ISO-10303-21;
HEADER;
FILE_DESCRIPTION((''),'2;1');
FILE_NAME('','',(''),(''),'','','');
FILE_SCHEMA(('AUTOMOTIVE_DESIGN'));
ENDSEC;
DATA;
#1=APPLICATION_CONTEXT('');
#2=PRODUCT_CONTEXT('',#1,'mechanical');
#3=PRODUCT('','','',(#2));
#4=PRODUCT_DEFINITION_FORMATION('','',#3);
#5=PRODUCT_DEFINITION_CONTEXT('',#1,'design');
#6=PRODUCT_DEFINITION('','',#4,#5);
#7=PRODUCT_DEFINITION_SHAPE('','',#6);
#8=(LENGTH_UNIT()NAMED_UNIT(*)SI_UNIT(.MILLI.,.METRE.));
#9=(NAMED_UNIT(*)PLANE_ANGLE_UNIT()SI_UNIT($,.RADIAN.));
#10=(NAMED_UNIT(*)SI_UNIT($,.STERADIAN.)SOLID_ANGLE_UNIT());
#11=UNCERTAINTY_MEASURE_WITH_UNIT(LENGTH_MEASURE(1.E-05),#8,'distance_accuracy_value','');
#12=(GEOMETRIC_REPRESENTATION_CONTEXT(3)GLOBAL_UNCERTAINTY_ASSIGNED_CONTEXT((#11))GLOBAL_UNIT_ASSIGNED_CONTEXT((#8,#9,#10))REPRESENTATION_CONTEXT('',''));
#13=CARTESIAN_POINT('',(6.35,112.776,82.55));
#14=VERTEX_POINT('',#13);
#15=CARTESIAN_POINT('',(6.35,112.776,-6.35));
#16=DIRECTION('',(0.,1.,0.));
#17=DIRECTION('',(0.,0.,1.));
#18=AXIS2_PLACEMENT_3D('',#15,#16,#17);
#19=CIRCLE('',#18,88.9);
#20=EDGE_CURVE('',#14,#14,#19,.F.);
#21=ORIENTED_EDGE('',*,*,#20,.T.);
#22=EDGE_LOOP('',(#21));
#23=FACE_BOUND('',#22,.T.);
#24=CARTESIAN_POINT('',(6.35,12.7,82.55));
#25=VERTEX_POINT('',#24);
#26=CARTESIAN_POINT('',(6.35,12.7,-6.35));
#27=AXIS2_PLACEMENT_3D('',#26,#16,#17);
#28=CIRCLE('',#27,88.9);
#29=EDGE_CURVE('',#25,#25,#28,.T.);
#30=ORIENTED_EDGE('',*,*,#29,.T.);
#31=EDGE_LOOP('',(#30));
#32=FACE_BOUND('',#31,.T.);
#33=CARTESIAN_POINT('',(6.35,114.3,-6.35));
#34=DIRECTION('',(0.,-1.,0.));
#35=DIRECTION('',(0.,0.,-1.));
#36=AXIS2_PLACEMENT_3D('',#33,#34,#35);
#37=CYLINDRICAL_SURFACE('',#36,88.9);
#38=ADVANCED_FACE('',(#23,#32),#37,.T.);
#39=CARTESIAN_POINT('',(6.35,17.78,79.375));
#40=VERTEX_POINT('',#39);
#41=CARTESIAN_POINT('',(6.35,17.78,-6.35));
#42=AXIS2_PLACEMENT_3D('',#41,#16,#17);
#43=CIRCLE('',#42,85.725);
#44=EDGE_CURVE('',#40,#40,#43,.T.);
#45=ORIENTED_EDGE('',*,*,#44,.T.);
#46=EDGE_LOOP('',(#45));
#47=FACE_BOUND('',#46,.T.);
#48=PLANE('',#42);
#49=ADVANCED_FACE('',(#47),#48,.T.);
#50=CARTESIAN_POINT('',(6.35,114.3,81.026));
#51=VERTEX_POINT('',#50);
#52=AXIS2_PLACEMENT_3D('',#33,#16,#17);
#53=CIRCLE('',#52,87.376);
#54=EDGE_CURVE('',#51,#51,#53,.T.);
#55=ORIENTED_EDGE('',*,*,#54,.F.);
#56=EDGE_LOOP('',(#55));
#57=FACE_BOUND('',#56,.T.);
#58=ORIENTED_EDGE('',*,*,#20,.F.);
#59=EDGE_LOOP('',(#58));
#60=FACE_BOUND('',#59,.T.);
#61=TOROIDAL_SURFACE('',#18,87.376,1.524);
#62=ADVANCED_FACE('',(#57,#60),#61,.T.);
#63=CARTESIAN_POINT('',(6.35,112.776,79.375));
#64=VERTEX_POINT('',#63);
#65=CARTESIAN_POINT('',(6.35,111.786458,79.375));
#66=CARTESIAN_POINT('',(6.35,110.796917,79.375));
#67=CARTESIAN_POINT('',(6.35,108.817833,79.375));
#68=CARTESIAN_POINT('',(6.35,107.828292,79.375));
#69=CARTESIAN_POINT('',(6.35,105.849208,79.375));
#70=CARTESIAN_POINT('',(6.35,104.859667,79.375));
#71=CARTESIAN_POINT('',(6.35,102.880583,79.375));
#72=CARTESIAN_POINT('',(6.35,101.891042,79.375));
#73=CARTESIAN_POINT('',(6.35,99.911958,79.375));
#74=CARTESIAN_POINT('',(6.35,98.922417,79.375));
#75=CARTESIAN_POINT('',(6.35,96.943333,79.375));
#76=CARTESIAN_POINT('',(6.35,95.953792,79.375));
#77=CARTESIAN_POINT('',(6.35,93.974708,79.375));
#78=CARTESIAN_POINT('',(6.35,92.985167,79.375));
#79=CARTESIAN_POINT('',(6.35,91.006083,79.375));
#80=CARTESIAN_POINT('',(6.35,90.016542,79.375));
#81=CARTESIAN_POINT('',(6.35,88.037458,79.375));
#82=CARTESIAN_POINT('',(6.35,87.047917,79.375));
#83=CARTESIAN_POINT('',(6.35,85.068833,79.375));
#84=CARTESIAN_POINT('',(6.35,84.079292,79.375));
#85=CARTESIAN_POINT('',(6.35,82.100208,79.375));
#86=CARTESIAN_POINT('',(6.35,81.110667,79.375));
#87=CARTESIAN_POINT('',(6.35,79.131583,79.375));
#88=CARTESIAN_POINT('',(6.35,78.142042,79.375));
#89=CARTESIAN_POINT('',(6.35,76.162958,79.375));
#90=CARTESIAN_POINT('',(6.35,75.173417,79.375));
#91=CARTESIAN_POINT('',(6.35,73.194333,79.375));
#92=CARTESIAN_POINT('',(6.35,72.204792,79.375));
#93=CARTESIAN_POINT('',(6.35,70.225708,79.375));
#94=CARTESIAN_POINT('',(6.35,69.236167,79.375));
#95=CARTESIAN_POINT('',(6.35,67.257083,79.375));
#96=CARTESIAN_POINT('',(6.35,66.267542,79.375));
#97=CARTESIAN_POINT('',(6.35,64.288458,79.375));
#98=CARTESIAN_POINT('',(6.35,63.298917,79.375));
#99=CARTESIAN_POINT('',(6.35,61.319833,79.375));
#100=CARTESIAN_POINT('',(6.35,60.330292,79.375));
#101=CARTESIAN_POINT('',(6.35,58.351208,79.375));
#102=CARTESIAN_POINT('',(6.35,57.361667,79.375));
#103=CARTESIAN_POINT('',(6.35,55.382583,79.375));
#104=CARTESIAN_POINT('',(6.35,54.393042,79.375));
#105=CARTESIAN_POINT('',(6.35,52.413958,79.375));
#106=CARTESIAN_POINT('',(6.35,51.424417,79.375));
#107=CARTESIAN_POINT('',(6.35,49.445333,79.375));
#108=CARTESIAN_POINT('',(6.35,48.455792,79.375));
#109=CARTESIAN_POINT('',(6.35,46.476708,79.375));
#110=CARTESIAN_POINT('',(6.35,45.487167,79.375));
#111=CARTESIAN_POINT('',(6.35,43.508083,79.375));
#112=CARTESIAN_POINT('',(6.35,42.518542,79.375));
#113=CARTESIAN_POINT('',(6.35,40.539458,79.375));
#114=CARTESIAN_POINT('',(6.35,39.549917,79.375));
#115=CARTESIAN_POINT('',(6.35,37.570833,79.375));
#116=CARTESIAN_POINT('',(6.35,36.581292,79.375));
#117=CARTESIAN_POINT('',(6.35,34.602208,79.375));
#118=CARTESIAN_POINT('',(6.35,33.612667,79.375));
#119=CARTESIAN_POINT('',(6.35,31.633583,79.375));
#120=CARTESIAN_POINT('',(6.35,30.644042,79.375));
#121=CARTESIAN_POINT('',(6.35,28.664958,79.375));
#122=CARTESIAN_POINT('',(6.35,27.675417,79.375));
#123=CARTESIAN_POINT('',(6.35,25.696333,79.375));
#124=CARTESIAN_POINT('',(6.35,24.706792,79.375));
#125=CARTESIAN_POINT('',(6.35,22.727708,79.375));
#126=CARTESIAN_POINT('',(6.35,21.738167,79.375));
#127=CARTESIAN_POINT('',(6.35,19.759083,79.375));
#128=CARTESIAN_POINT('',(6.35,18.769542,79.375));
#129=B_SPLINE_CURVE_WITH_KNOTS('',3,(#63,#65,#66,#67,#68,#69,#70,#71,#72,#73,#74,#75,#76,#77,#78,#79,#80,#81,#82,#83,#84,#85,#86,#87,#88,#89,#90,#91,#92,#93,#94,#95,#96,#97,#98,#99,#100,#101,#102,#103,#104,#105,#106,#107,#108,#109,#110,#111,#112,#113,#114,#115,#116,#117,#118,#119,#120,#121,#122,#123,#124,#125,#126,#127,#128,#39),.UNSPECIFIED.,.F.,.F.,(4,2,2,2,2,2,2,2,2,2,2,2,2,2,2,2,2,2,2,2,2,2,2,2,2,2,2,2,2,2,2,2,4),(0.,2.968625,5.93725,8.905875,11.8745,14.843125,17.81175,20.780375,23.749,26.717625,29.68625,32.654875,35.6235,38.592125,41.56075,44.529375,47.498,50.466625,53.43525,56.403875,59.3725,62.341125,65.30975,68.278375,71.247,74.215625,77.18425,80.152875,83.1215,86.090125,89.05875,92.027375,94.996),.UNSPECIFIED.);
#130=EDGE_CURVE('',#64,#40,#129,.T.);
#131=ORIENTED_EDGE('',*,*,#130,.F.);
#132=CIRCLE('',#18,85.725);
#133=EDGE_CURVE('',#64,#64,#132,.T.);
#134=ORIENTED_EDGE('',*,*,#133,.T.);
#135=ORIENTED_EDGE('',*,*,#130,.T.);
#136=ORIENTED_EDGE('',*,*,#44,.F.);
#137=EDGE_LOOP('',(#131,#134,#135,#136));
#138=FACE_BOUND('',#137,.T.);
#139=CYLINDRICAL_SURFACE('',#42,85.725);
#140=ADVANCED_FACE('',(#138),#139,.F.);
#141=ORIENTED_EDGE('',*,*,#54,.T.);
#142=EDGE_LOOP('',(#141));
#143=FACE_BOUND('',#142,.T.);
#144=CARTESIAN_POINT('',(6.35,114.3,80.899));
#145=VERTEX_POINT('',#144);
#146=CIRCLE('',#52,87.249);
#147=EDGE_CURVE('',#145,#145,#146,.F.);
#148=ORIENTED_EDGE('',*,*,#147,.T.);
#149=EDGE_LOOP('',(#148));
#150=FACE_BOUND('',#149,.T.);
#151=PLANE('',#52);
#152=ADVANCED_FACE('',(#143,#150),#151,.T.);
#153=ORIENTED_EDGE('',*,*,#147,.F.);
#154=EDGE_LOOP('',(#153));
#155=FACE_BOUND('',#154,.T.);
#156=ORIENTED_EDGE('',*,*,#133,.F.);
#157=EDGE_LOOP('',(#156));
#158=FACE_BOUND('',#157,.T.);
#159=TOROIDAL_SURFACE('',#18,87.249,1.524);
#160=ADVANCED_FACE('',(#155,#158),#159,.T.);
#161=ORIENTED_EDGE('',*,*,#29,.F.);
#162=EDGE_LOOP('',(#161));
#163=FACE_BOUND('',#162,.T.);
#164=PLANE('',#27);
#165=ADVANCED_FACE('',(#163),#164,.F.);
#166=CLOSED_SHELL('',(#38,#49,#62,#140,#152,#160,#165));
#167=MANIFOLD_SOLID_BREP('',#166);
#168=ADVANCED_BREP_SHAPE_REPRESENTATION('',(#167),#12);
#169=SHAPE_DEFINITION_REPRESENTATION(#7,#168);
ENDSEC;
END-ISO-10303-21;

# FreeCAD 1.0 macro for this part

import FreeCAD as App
import Part
import Sketcher
from FreeCAD import Vector
Q = App.Units.Quantity


def edges_at(feature, points):
    """Names of the edges that pass closest to the given points."""
    edges = feature.Shape.Edges
    near = lambda p: min(range(len(edges)), key=lambda i: edges[i].distToShape(Part.Vertex(*p))[0])
    return sorted({f"Edge{near(p) + 1}" for p in points})


def add_polygon(sketch, points):
    """Adds a closed chain of lines whose ends are joined by coincident constraints."""
    first, n = sketch.GeometryCount, len(points)
    for a, b in zip(points, points[1:] + points[:1]):
        sketch.addGeometry(Part.LineSegment(App.Vector(*a, 0), App.Vector(*b, 0)), False)
    for i in range(n):
        sketch.addConstraint(Sketcher.Constraint("Coincident", first + i, 2, first + (i + 1) % n, 1))

doc = App.newDocument("Part")
body = doc.addObject("PartDesign::Body", "Body")

sketch1 = body.newObject("Sketcher::SketchObject", "Sketch")
sketch1.AttachmentSupport = (doc.getObject("XZ_Plane"), [""])
sketch1.MapMode = "FlatFace"
add_polygon(sketch1, [(0, -12.7), (0, 0), (12.7, 0), (12.7, -12.7)])
sketch1.addConstraint([
    Sketcher.Constraint("Vertical", 0),
    Sketcher.Constraint("Horizontal", 1),
    Sketcher.Constraint("Vertical", 2),
    Sketcher.Constraint("Horizontal", 3),
    Sketcher.Constraint("Coincident", 0, 2, -1, 1),
    Sketcher.Constraint("Equal", 3, 0),
    Sketcher.Constraint("DistanceX", 1, 1, 1, 2, Q("0.5 in")),
])
pad1 = body.newObject("PartDesign::Pad", "Pad")
pad1.Profile = sketch1
pad1.Length = Q("0.5 in")
pad1.Reversed = True

sketch2 = body.newObject("Sketcher::SketchObject", "Sketch001")
sketch2.AttachmentSupport = (doc.getObject("XZ_Plane"), [""])
sketch2.MapMode = "FlatFace"
sketch2.AttachmentOffset = App.Placement(Vector(0, 0, -0.5 * 25.4), App.Rotation())
sketch2.addGeometry(Part.Circle(Vector(6.35, -6.35, 0), Vector(0, 0, 1), 88.9), False)
sketch2.addConstraint([
    Sketcher.Constraint("Diameter", 0, Q("7 in")),
    Sketcher.Constraint("DistanceX", -1, 1, 0, 3, Q("0.25 in")),
    Sketcher.Constraint("DistanceY", 0, 3, -1, 1, Q("0.25 in")),
])
pad2 = body.newObject("PartDesign::Pad", "Pad001")
pad2.Profile = sketch2
pad2.Length = Q("4 in")
pad2.Reversed = True

sketch3 = body.newObject("Sketcher::SketchObject", "Sketch002")
sketch3.AttachmentSupport = (doc.getObject("XZ_Plane"), [""])
sketch3.MapMode = "FlatFace"
sketch3.AttachmentOffset = App.Placement(Vector(0, 0, -4.5 * 25.4), App.Rotation())
sketch3.addGeometry(Part.Circle(Vector(6.35, -6.35, 0), Vector(0, 0, 1), 85.725), False)
sketch3.addConstraint([
    Sketcher.Constraint("Diameter", 0, Q("6.75 in")),
    Sketcher.Constraint("DistanceX", -1, 1, 0, 3, Q("0.25 in")),
    Sketcher.Constraint("DistanceY", 0, 3, -1, 1, Q("0.25 in")),
])
pocket1 = body.newObject("PartDesign::Pocket", "Pocket")
pocket1.Profile = sketch3
pocket1.Length = Q("3.8 in")
pocket1.Reversed = True

sketch4 = body.newObject("Sketcher::SketchObject", "Sketch003")
sketch4.AttachmentSupport = (doc.getObject("XZ_Plane"), [""])
sketch4.MapMode = "FlatFace"
add_polygon(sketch4, [(0, 0), (0, -12.7), (12.7, -12.7), (12.7, 0)])
sketch4.addConstraint([
    Sketcher.Constraint("Vertical", 0),
    Sketcher.Constraint("Horizontal", 1),
    Sketcher.Constraint("Vertical", 2),
    Sketcher.Constraint("Horizontal", 3),
    Sketcher.Constraint("Coincident", 3, 2, -1, 1),
    Sketcher.Constraint("Equal", 3, 0),
    Sketcher.Constraint("DistanceX", 1, 1, 1, 2, Q("0.5 in")),
])
pocket2 = body.newObject("PartDesign::Pocket", "Pocket001")
pocket2.Profile = sketch4
pocket2.Length = Q("0.5 in")
doc.recompute()

fillet = body.newObject("PartDesign::Fillet", "Fillet")
fillet.Base = (pocket2, edges_at(pocket2, [(6.35, 114.3, -95.25), (6.35, 114.3, -92.075)]))
fillet.Radius = Q("0.06 in")

doc.recompute()
